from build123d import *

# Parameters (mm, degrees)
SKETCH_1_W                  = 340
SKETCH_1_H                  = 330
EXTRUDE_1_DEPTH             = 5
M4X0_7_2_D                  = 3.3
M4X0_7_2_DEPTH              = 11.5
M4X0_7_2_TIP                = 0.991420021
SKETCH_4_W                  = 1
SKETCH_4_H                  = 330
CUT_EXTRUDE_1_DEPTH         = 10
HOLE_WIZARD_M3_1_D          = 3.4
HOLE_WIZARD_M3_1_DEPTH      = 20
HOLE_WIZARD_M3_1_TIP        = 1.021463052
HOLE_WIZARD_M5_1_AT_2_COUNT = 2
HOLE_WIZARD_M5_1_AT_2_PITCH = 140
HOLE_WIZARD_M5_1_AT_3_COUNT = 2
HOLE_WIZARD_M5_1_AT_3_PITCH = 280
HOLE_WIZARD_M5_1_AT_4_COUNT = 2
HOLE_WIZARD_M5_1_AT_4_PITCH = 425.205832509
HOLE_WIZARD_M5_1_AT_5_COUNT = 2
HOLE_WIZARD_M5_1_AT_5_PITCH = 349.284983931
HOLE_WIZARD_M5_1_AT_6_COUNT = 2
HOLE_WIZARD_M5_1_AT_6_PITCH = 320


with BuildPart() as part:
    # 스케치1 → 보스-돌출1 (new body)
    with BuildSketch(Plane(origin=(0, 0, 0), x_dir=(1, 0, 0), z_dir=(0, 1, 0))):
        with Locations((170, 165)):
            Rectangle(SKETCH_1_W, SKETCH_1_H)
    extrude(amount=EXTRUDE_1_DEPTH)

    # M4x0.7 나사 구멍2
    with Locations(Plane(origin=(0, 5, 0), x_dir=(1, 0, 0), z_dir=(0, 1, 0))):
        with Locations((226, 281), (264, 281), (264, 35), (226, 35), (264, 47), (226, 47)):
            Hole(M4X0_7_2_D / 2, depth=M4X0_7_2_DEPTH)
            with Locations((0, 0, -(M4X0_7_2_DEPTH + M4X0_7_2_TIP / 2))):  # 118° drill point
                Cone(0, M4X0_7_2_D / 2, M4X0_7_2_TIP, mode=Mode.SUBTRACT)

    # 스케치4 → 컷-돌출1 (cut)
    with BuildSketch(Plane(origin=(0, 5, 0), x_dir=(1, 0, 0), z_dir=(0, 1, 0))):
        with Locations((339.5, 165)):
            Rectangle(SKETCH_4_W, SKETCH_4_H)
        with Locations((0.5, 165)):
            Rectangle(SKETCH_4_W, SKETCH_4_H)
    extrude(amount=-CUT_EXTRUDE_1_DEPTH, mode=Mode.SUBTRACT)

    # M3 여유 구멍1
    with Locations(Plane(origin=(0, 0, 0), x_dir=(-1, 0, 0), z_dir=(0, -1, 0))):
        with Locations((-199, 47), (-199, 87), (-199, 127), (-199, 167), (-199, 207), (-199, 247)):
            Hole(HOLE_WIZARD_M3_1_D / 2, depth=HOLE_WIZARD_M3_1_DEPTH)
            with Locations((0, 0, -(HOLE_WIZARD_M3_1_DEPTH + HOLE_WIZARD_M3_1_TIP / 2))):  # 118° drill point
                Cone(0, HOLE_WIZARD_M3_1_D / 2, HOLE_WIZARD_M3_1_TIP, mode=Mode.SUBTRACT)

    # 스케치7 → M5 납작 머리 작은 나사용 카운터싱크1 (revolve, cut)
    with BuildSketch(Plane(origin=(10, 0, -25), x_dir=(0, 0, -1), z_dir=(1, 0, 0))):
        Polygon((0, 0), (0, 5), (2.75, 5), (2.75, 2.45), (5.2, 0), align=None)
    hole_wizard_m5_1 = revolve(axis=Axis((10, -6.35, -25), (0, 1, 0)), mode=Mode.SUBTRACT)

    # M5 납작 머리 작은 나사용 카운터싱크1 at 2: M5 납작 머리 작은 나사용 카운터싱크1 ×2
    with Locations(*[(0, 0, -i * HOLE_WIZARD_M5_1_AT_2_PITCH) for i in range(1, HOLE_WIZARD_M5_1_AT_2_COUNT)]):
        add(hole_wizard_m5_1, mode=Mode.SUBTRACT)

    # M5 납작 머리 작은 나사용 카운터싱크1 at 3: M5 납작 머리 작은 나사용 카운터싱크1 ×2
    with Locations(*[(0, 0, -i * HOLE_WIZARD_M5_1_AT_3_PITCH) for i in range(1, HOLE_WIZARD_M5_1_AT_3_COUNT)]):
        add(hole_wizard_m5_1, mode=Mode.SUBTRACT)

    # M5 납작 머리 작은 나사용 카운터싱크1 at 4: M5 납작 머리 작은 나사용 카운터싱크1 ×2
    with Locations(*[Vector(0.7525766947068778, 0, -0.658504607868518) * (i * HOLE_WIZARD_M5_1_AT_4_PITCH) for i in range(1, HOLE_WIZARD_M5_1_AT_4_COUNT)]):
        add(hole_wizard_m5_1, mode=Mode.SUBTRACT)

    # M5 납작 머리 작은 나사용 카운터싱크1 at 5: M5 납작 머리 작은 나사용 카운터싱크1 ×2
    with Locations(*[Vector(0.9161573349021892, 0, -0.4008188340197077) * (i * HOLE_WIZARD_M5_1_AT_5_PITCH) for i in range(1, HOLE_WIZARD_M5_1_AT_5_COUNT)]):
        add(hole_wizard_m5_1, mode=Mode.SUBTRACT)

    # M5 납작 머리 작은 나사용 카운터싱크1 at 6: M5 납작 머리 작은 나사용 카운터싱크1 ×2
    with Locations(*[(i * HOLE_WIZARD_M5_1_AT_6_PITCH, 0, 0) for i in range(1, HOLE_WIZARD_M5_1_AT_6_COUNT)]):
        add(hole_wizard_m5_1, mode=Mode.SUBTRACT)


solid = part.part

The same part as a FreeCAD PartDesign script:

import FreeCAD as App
import Part
import Sketcher
from FreeCAD import Vector
Q = App.Units.Quantity

doc = App.newDocument("Part")
params = doc.addObject("Spreadsheet::Sheet", "Params")
for row, (alias, value) in enumerate([
    ("sketch1_width", "340 mm"),
    ("sketch1_height", "330 mm"),
    ("pad1_length", "5 mm"),
    ("sketch2_diameter", "3.3 mm"),
    ("hole_diameter", "3.3 mm"),
    ("hole_depth", "11.5 mm"),
    ("sketch3_width", "1 mm"),
    ("sketch3_height", "330 mm"),
    ("pocket1_length", "10 mm"),
    ("sketch4_diameter", "3.4 mm"),
    ("hole2_diameter", "3.4 mm"),
    ("hole2_depth", "20 mm"),
    ("sketch5_width", "5 mm"),
    ("sketch5_height", "5.2 mm"),
    ("sketch5_width2", "2.55 mm"),
    ("groove_angle", "360 deg"),
    ("linearpattern_pitch", "140 mm"),
    ("linearpattern2_pitch", "280 mm"),
    ("linearpattern3_pitch", "425.205833 mm"),
    ("linearpattern4_pitch", "349.284984 mm"),
    ("linearpattern5_pitch", "320 mm"),
], start=1):
    params.set(f"A{row}", alias)
    params.set(f"B{row}", "=" + value)
    params.setAlias(f"B{row}", alias)

body = doc.addObject("PartDesign::Body", "Body")

sketch1 = doc.addObject("Sketcher::SketchObject", "Sketch")
body.addObject(sketch1)
sketch1.AttachmentSupport = (doc.XZ_Plane, [""])
sketch1.MapMode = "FlatFace"
sketch1.addGeometry([
    Part.LineSegment(Vector(0, -330, 0), Vector(0, 0, 0)),
    Part.LineSegment(Vector(0, 0, 0), Vector(340, 0, 0)),
    Part.LineSegment(Vector(340, 0, 0), Vector(340, -330, 0)),
    Part.LineSegment(Vector(340, -330, 0), Vector(0, -330, 0)),
], False)
sketch1.addConstraint([
    Sketcher.Constraint("Coincident", 0, 2, 1, 1),
    Sketcher.Constraint("Coincident", 1, 2, 2, 1),
    Sketcher.Constraint("Coincident", 2, 2, 3, 1),
    Sketcher.Constraint("Coincident", 3, 2, 0, 1),
    Sketcher.Constraint("Vertical", 0),
    Sketcher.Constraint("Horizontal", 1),
    Sketcher.Constraint("Vertical", 2),
    Sketcher.Constraint("Horizontal", 3),
    Sketcher.Constraint("Coincident", 0, 2, -1, 1),
    Sketcher.Constraint("DistanceX", 1, 1, 1, 2, Q("340 mm")),
    Sketcher.Constraint("DistanceY", 0, 1, 0, 2, Q("330 mm")),
])
sketch1.setExpression("Constraints[9]", "Params.sketch1_width")
sketch1.setExpression("Constraints[10]", "Params.sketch1_height")
pad1 = doc.addObject("PartDesign::Pad", "Pad")
body.addObject(pad1)
pad1.Profile = sketch1
pad1.setExpression("Length", "Params.pad1_length")
pad1.Reversed = True

sketch2 = doc.addObject("Sketcher::SketchObject", "Sketch001")
body.addObject(sketch2)
sketch2.AttachmentSupport = (doc.XZ_Plane, [""])
sketch2.MapMode = "FlatFace"
sketch2.AttachmentOffset = App.Placement(Vector(0, 0, -5), App.Rotation())
sketch2.addGeometry([
    Part.Circle(Vector(226, -281, 0), Vector(0, 0, 1), 1.65),
    Part.Circle(Vector(264, -281, 0), Vector(0, 0, 1), 1.65),
    Part.Circle(Vector(264, -35, 0), Vector(0, 0, 1), 1.65),
    Part.Circle(Vector(226, -35, 0), Vector(0, 0, 1), 1.65),
    Part.Circle(Vector(264, -47, 0), Vector(0, 0, 1), 1.65),
    Part.Circle(Vector(226, -47, 0), Vector(0, 0, 1), 1.65),
], False)
sketch2.addConstraint([
    Sketcher.Constraint("Equal", 0, 1),
    Sketcher.Constraint("Equal", 1, 2),
    Sketcher.Constraint("Equal", 2, 3),
    Sketcher.Constraint("Equal", 3, 4),
    Sketcher.Constraint("Equal", 4, 5),
    Sketcher.Constraint("Horizontal", 0, 3, 1, 3),
    Sketcher.Constraint("Horizontal", 2, 3, 3, 3),
    Sketcher.Constraint("Horizontal", 4, 3, 5, 3),
    Sketcher.Constraint("Vertical", 1, 3, 2, 3),
    Sketcher.Constraint("Vertical", 0, 3, 3, 3),
    Sketcher.Constraint("Vertical", 2, 3, 4, 3),
    Sketcher.Constraint("Vertical", 3, 3, 5, 3),
    Sketcher.Constraint("Diameter", 0, Q("3.3 mm")),
    Sketcher.Constraint("DistanceX", -1, 1, 0, 3, Q("226 mm")),
    Sketcher.Constraint("DistanceY", 0, 3, -1, 1, Q("281 mm")),
    Sketcher.Constraint("DistanceX", -1, 1, 1, 3, Q("264 mm")),
    Sketcher.Constraint("DistanceY", 2, 3, -1, 1, Q("35 mm")),
    Sketcher.Constraint("DistanceY", 4, 3, -1, 1, Q("47 mm")),
])
sketch2.setExpression("Constraints[12]", "Params.sketch2_diameter")
doc.recompute()
hole = doc.addObject("PartDesign::Hole", "Hole")
body.addObject(hole)
hole.Profile = sketch2
hole.ThreadType = "None"
hole.setExpression("Diameter", "Params.hole_diameter")
hole.DepthType = "Dimension"
hole.setExpression("Depth", "Params.hole_depth")
hole.DrillPoint = "Angled"
hole.DrillPointAngle = 118
hole.Reversed = True

sketch3 = doc.addObject("Sketcher::SketchObject", "Sketch002")
body.addObject(sketch3)
sketch3.AttachmentSupport = (doc.XZ_Plane, [""])
sketch3.MapMode = "FlatFace"
sketch3.AttachmentOffset = App.Placement(Vector(0, 0, -5), App.Rotation())
sketch3.addGeometry([
    Part.LineSegment(Vector(339, -330, 0), Vector(339, 0, 0)),
    Part.LineSegment(Vector(339, 0, 0), Vector(340, 0, 0)),
    Part.LineSegment(Vector(340, 0, 0), Vector(340, -330, 0)),
    Part.LineSegment(Vector(340, -330, 0), Vector(339, -330, 0)),
    Part.LineSegment(Vector(0, -330, 0), Vector(0, 0, 0)),
    Part.LineSegment(Vector(0, 0, 0), Vector(1, 0, 0)),
    Part.LineSegment(Vector(1, 0, 0), Vector(1, -330, 0)),
    Part.LineSegment(Vector(1, -330, 0), Vector(0, -330, 0)),
], False)
sketch3.addConstraint([
    Sketcher.Constraint("Coincident", 0, 2, 1, 1),
    Sketcher.Constraint("Coincident", 1, 2, 2, 1),
    Sketcher.Constraint("Coincident", 2, 2, 3, 1),
    Sketcher.Constraint("Coincident", 3, 2, 0, 1),
    Sketcher.Constraint("Coincident", 4, 2, 5, 1),
    Sketcher.Constraint("Coincident", 5, 2, 6, 1),
    Sketcher.Constraint("Coincident", 6, 2, 7, 1),
    Sketcher.Constraint("Coincident", 7, 2, 4, 1),
    Sketcher.Constraint("Vertical", 0),
    Sketcher.Constraint("Horizontal", 1),
    Sketcher.Constraint("Vertical", 2),
    Sketcher.Constraint("Horizontal", 3),
    Sketcher.Constraint("Vertical", 4),
    Sketcher.Constraint("Horizontal", 5),
    Sketcher.Constraint("Vertical", 6),
    Sketcher.Constraint("Horizontal", 7),
    Sketcher.Constraint("Coincident", 4, 2, -1, 1),
    Sketcher.Constraint("PointOnObject", 0, 2, -1),
    Sketcher.Constraint("Horizontal", 3, 2, 6, 2),
    Sketcher.Constraint("Equal", 3, 5),
    Sketcher.Constraint("DistanceX", 1, 1, 1, 2, Q("1 mm")),
    Sketcher.Constraint("DistanceY", 0, 1, 0, 2, Q("330 mm")),
    Sketcher.Constraint("DistanceX", -1, 1, 0, 2, Q("339 mm")),
])
sketch3.setExpression("Constraints[20]", "Params.sketch3_width")
sketch3.setExpression("Constraints[21]", "Params.sketch3_height")
pocket1 = doc.addObject("PartDesign::Pocket", "Pocket")
body.addObject(pocket1)
pocket1.Profile = sketch3
pocket1.setExpression("Length", "Params.pocket1_length")
pocket1.Reversed = True

sketch4 = doc.addObject("Sketcher::SketchObject", "Sketch003")
body.addObject(sketch4)
sketch4.AttachmentSupport = (doc.XZ_Plane, [""])
sketch4.MapMode = "FlatFace"
sketch4.addGeometry([
    Part.Circle(Vector(199, -47, 0), Vector(0, 0, 1), 1.7),
    Part.Circle(Vector(199, -87, 0), Vector(0, 0, 1), 1.7),
    Part.Circle(Vector(199, -127, 0), Vector(0, 0, 1), 1.7),
    Part.Circle(Vector(199, -167, 0), Vector(0, 0, 1), 1.7),
    Part.Circle(Vector(199, -207, 0), Vector(0, 0, 1), 1.7),
    Part.Circle(Vector(199, -247, 0), Vector(0, 0, 1), 1.7),
], False)
sketch4.addConstraint([
    Sketcher.Constraint("Equal", 0, 1),
    Sketcher.Constraint("Equal", 1, 2),
    Sketcher.Constraint("Equal", 2, 3),
    Sketcher.Constraint("Equal", 3, 4),
    Sketcher.Constraint("Equal", 4, 5),
    Sketcher.Constraint("Vertical", 0, 3, 1, 3),
    Sketcher.Constraint("Vertical", 1, 3, 2, 3),
    Sketcher.Constraint("Vertical", 2, 3, 3, 3),
    Sketcher.Constraint("Vertical", 3, 3, 4, 3),
    Sketcher.Constraint("Vertical", 4, 3, 5, 3),
    Sketcher.Constraint("Diameter", 0, Q("3.4 mm")),
    Sketcher.Constraint("DistanceX", -1, 1, 0, 3, Q("199 mm")),
    Sketcher.Constraint("DistanceY", 0, 3, -1, 1, Q("47 mm")),
    Sketcher.Constraint("DistanceY", 1, 3, -1, 1, Q("87 mm")),
    Sketcher.Constraint("DistanceY", 2, 3, -1, 1, Q("127 mm")),
    Sketcher.Constraint("DistanceY", 3, 3, -1, 1, Q("167 mm")),
    Sketcher.Constraint("DistanceY", 4, 3, -1, 1, Q("207 mm")),
    Sketcher.Constraint("DistanceY", 5, 3, -1, 1, Q("247 mm")),
])
sketch4.setExpression("Constraints[10]", "Params.sketch4_diameter")
doc.recompute()
hole2 = doc.addObject("PartDesign::Hole", "Hole001")
body.addObject(hole2)
hole2.Profile = sketch4
hole2.ThreadType = "None"
hole2.setExpression("Diameter", "Params.hole2_diameter")
hole2.DepthType = "Dimension"
hole2.setExpression("Depth", "Params.hole2_depth")
hole2.DrillPoint = "Angled"
hole2.DrillPointAngle = 118

sketch5 = doc.addObject("Sketcher::SketchObject", "Sketch004")
body.addObject(sketch5)
sketch5.AttachmentSupport = (doc.YZ_Plane, [""])
sketch5.MapMode = "FlatFace"
sketch5.AttachmentOffset = App.Placement(Vector(0, 0, 10), App.Rotation())
sketch5.addGeometry([
    Part.LineSegment(Vector(5, -25, 0), Vector(0, -25, 0)),
    Part.LineSegment(Vector(0, -25, 0), Vector(0, -30.2, 0)),
    Part.LineSegment(Vector(0, -30.2, 0), Vector(2.45, -27.75, 0)),
    Part.LineSegment(Vector(2.45, -27.75, 0), Vector(5, -27.75, 0)),
    Part.LineSegment(Vector(5, -27.75, 0), Vector(5, -25, 0)),
], False)
sketch5.addGeometry(Part.LineSegment(Vector(0, -25, 0), Vector(5, -25, 0)), True)
sketch5.addConstraint([
    Sketcher.Constraint("Coincident", 0, 2, 1, 1),
    Sketcher.Constraint("Coincident", 1, 2, 2, 1),
    Sketcher.Constraint("Coincident", 2, 2, 3, 1),
    Sketcher.Constraint("Coincident", 3, 2, 4, 1),
    Sketcher.Constraint("Coincident", 4, 2, 0, 1),
    Sketcher.Constraint("Horizontal", 0),
    Sketcher.Constraint("Vertical", 1),
    Sketcher.Constraint("Horizontal", 3),
    Sketcher.Constraint("Vertical", 4),
    Sketcher.Constraint("Horizontal", 5),
    Sketcher.Constraint("Coincident", 5, 1, 0, 2),
    Sketcher.Constraint("PointOnObject", 0, 2, -2),
    Sketcher.Constraint("Vertical", 3, 2, 5, 2),
    Sketcher.Constraint("DistanceX", 0, 2, 0, 1, Q("5 mm")),
    Sketcher.Constraint("Angle", 2, Q("45 deg")),
    Sketcher.Constraint("DistanceY", 1, 2, 1, 1, Q("5.2 mm")),
    Sketcher.Constraint("DistanceY", 0, 2, -1, 1, Q("25 mm")),
    Sketcher.Constraint("DistanceX", 3, 1, 3, 2, Q("2.55 mm")),
])
sketch5.setExpression("Constraints[13]", "Params.sketch5_width")
sketch5.setExpression("Constraints[15]", "Params.sketch5_height")
sketch5.setExpression("Constraints[17]", "Params.sketch5_width2")
groove = doc.addObject("PartDesign::Groove", "Groove")
body.addObject(groove)
groove.Profile = sketch5
groove.ReferenceAxis = (sketch5, ["Axis0"])
groove.setExpression("Angle", "Params.groove_angle")
doc.recompute()

linearpattern = doc.addObject("PartDesign::LinearPattern", "LinearPattern")
body.addObject(linearpattern)
linearpattern.Originals = [groove]
linearpattern.Direction = (doc.Z_Axis, [""])
linearpattern.Mode = "offset"
linearpattern.setExpression("Offset", "Params.linearpattern_pitch")
linearpattern.Occurrences = 2
linearpattern.Reversed = True
body.Tip = linearpattern
doc.recompute()

linearpattern2 = doc.addObject("PartDesign::LinearPattern", "LinearPattern001")
body.addObject(linearpattern2)
linearpattern2.Originals = [groove]
linearpattern2.Direction = (doc.Z_Axis, [""])
linearpattern2.Mode = "offset"
linearpattern2.setExpression("Offset", "Params.linearpattern2_pitch")
linearpattern2.Occurrences = 2
linearpattern2.Reversed = True
body.Tip = linearpattern2
doc.recompute()

datumline = doc.addObject("PartDesign::Line", "DatumLine")
body.addObject(datumline)
datumline.Placement = App.Placement(Vector(0, 0, 0), App.Rotation(Vector(0, 0, 1), Vector(0.752576695, 0, -0.658504608)))
linearpattern3 = doc.addObject("PartDesign::LinearPattern", "LinearPattern002")
body.addObject(linearpattern3)
linearpattern3.Originals = [groove]
linearpattern3.Direction = (datumline, [""])
linearpattern3.Mode = "offset"
linearpattern3.setExpression("Offset", "Params.linearpattern3_pitch")
linearpattern3.Occurrences = 2
body.Tip = linearpattern3
doc.recompute()

datumline2 = doc.addObject("PartDesign::Line", "DatumLine001")
body.addObject(datumline2)
datumline2.Placement = App.Placement(Vector(0, 0, 0), App.Rotation(Vector(0, 0, 1), Vector(0.916157335, 0, -0.400818834)))
linearpattern4 = doc.addObject("PartDesign::LinearPattern", "LinearPattern003")
body.addObject(linearpattern4)
linearpattern4.Originals = [groove]
linearpattern4.Direction = (datumline2, [""])
linearpattern4.Mode = "offset"
linearpattern4.setExpression("Offset", "Params.linearpattern4_pitch")
linearpattern4.Occurrences = 2
body.Tip = linearpattern4
doc.recompute()

linearpattern5 = doc.addObject("PartDesign::LinearPattern", "LinearPattern004")
body.addObject(linearpattern5)
linearpattern5.Originals = [groove]
linearpattern5.Direction = (doc.X_Axis, [""])
linearpattern5.Mode = "offset"
linearpattern5.setExpression("Offset", "Params.linearpattern5_pitch")
linearpattern5.Occurrences = 2
body.Tip = linearpattern5

doc.recompute()
